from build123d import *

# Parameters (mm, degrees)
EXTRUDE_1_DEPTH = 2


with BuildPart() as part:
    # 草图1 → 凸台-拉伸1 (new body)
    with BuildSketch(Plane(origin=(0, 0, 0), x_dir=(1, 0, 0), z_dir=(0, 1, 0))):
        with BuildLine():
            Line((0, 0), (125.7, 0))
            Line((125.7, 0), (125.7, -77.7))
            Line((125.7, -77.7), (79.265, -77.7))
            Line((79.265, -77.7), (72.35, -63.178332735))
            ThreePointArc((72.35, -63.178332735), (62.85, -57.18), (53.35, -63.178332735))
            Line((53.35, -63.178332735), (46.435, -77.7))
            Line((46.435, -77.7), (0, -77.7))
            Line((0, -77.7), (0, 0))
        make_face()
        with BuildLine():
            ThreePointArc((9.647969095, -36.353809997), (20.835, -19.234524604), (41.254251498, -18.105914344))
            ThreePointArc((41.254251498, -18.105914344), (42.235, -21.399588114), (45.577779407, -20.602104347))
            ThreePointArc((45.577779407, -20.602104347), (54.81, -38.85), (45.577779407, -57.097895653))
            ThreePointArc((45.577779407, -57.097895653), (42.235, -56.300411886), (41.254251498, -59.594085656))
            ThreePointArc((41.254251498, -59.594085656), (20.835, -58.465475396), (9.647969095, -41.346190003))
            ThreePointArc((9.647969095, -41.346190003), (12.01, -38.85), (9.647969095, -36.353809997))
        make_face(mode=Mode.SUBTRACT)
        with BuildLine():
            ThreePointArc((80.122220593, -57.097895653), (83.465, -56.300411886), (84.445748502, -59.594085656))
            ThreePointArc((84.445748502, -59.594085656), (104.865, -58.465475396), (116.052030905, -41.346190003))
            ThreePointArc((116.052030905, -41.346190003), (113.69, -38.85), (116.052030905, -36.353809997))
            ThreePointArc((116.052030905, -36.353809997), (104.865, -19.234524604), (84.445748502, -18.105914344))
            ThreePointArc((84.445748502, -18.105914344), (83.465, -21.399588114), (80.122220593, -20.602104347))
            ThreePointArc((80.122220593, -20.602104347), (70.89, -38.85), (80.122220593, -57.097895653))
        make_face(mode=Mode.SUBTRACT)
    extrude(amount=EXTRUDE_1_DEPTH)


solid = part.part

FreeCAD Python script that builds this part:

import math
import FreeCAD as App
import Part
import Sketcher

V = App.Vector
Q = App.Units.Quantity

doc = App.newDocument("Part")
body = doc.addObject("PartDesign::Body", "Body")

# Sketch on XZ plane
sketch1 = doc.addObject("Sketcher::SketchObject", "Sketch")
body.addObject(sketch1)
sketch1.AttachmentSupport = (doc.XZ_Plane, [""])
sketch1.MapMode = "FlatFace"
sketch1.addGeometry([
    Part.LineSegment(V(125.7, 0, 0), V(0, 0, 0)),  # 0
    Part.LineSegment(V(0, 0, 0), V(0, 77.7, 0)),  # 1
    Part.LineSegment(V(0, 77.7, 0), V(46.4, 77.7, 0)),  # 2
    Part.LineSegment(V(46.4, 77.7, 0), V(53.4, 63.2, 0)),  # 3
    Part.ArcOfCircle(Part.Circle(V(62.9, 67.7, 0), V(0, 0, 1), 10.5), math.radians(-155), math.radians(-25)),  # 4
    Part.LineSegment(V(72.3, 63.2, 0), V(79.3, 77.7, 0)),  # 5
    Part.LineSegment(V(79.3, 77.7, 0), V(125.7, 77.7, 0)),  # 6
    Part.LineSegment(V(125.7, 77.7, 0), V(125.7, 0, 0)),  # 7
    Part.ArcOfCircle(Part.Circle(V(93.5, 38.9, 0), V(0, 0, 1), 22.6), math.radians(126), math.radians(234)),  # 8
    Part.ArcOfCircle(Part.Circle(V(82.2, 19.2, 0), V(0, 0, 1), 2.5), math.radians(-27), math.radians(147)),  # 9
    Part.ArcOfCircle(Part.Circle(V(93.5, 38.9, 0), V(0, 0, 1), 22.6), math.radians(-114), math.radians(-6)),  # 10
    Part.ArcOfCircle(Part.Circle(V(116.2, 38.9, 0), V(0, 0, 1), 2.5), math.radians(93), math.radians(267)),  # 11
    Part.ArcOfCircle(Part.Circle(V(93.5, 38.9, 0), V(0, 0, 1), 22.6), math.radians(6), math.radians(114)),  # 12
    Part.ArcOfCircle(Part.Circle(V(82.2, 58.5, 0), V(0, 0, 1), 2.5), math.radians(-147), math.radians(27)),  # 13
    Part.ArcOfCircle(Part.Circle(V(32.2, 38.9, 0), V(0, 0, 1), 22.6), math.radians(-174), math.radians(-66)),  # 14
    Part.ArcOfCircle(Part.Circle(V(43.5, 19.2, 0), V(0, 0, 1), 2.5), math.radians(33), math.radians(207)),  # 15
    Part.ArcOfCircle(Part.Circle(V(32.2, 38.9, 0), V(0, 0, 1), 22.6), math.radians(-54), math.radians(54)),  # 16
    Part.ArcOfCircle(Part.Circle(V(43.5, 58.5, 0), V(0, 0, 1), 2.5), math.radians(153), math.radians(327)),  # 17
    Part.ArcOfCircle(Part.Circle(V(32.2, 38.9, 0), V(0, 0, 1), 22.6), math.radians(66), math.radians(174)),  # 18
    Part.ArcOfCircle(Part.Circle(V(9.5, 38.9, 0), V(0, 0, 1), 2.5), math.radians(-87), math.radians(87)),  # 19
], False)
sketch1.addConstraint([
    Sketcher.Constraint("Coincident", 0, 2, 1, 1),
    Sketcher.Constraint("Coincident", 1, 2, 2, 1),
    Sketcher.Constraint("Coincident", 2, 2, 3, 1),
    Sketcher.Constraint("Tangent", 3, 2, 4, 1),
    Sketcher.Constraint("Tangent", 4, 2, 5, 1),
    Sketcher.Constraint("Coincident", 5, 2, 6, 1),
    Sketcher.Constraint("Coincident", 6, 2, 7, 1),
    Sketcher.Constraint("Coincident", 7, 2, 0, 1),
    Sketcher.Constraint("Coincident", 8, 2, 9, 2),
    Sketcher.Constraint("Coincident", 9, 1, 10, 1),
    Sketcher.Constraint("Coincident", 10, 2, 11, 2),
    Sketcher.Constraint("Coincident", 11, 1, 12, 1),
    Sketcher.Constraint("Coincident", 12, 2, 13, 2),
    Sketcher.Constraint("Coincident", 13, 1, 8, 1),
    Sketcher.Constraint("Coincident", 14, 2, 15, 2),
    Sketcher.Constraint("Coincident", 15, 1, 16, 1),
    Sketcher.Constraint("Coincident", 16, 2, 17, 2),
    Sketcher.Constraint("Coincident", 17, 1, 18, 1),
    Sketcher.Constraint("Coincident", 18, 2, 19, 2),
    Sketcher.Constraint("Coincident", 19, 1, 14, 1),
    Sketcher.Constraint("Horizontal", 0),
    Sketcher.Constraint("Vertical", 1),
    Sketcher.Constraint("Horizontal", 2),
    Sketcher.Constraint("Horizontal", 6),
    Sketcher.Constraint("Vertical", 7),
    Sketcher.Constraint("Coincident", 0, 2, -1, 1),
    Sketcher.Constraint("Coincident", 10, 3, 8, 3),
    Sketcher.Constraint("Coincident", 12, 3, 8, 3),
    Sketcher.Constraint("Coincident", 16, 3, 14, 3),
    Sketcher.Constraint("Coincident", 18, 3, 14, 3),
    Sketcher.Constraint("Equal", 8, 10),
    Sketcher.Constraint("Equal", 9, 11),
    Sketcher.Constraint("Equal", 10, 12),
    Sketcher.Constraint("Equal", 11, 13),
    Sketcher.Constraint("Equal", 12, 14),
    Sketcher.Constraint("Equal", 13, 15),
    Sketcher.Constraint("Equal", 14, 16),
    Sketcher.Constraint("Equal", 15, 17),
    Sketcher.Constraint("Equal", 16, 18),
    Sketcher.Constraint("Equal", 17, 19),
    Sketcher.Constraint("Horizontal", 10, 3, 11, 3),
    Sketcher.Constraint("Horizontal", 12, 3, 14, 3),
    Sketcher.Constraint("Horizontal", 9, 3, 15, 3),
    Sketcher.Constraint("Horizontal", 13, 3, 17, 3),
    Sketcher.Constraint("Horizontal", 18, 3, 19, 3),
    Sketcher.Constraint("Horizontal", 3, 2, 4, 2),
    Sketcher.Constraint("Horizontal", 2, 2, 5, 2),
    Sketcher.Constraint("Horizontal", 9, 1, 14, 2),
    Sketcher.Constraint("Horizontal", 13, 1, 16, 2),
    Sketcher.Constraint("Horizontal", 11, 1, 18, 2),
    Sketcher.Constraint("Vertical", 9, 3, 13, 3),
    Sketcher.Constraint("Vertical", 9, 1, 12, 2),
    Sketcher.Constraint("Equal", 2, 6),
    Sketcher.Constraint("Radius", 9, Q("2.5 mm")),
    Sketcher.Constraint("Radius", 8, Q("22.65 mm")),
    Sketcher.Constraint("DistanceX", 0, 2, 0, 1, Q("125.7 mm")),
    Sketcher.Constraint("DistanceY", 1, 1, 1, 2, Q("77.7 mm")),
    Sketcher.Constraint("DistanceX", 3, 2, 4, 2, Q("19 mm")),
    Sketcher.Constraint("DistanceX", 2, 1, 2, 2, Q("46.435 mm")),
    Sketcher.Constraint("DistanceX", -1, 1, 8, 3, Q("93.54 mm")),
    Sketcher.Constraint("DistanceY", -1, 1, 8, 3, Q("38.85 mm")),
    Sketcher.Constraint("DistanceX", -1, 1, 11, 3, Q("116.19 mm")),
    Sketcher.Constraint("DistanceX", -1, 1, 14, 3, Q("32.16 mm")),
    Sketcher.Constraint("Radius", 4, Q("10.52209 mm")),
    Sketcher.Constraint("DistanceX", 15, 3, 9, 3, Q("38.73 mm")),
    Sketcher.Constraint("DistanceX", -1, 1, 8, 2, Q("80.122221 mm")),
])
pad1 = doc.addObject("PartDesign::Pad", "Pad")
body.addObject(pad1)
pad1.Profile = sketch1
pad1.Length = 2
pad1.Reversed = True

doc.recompute()
